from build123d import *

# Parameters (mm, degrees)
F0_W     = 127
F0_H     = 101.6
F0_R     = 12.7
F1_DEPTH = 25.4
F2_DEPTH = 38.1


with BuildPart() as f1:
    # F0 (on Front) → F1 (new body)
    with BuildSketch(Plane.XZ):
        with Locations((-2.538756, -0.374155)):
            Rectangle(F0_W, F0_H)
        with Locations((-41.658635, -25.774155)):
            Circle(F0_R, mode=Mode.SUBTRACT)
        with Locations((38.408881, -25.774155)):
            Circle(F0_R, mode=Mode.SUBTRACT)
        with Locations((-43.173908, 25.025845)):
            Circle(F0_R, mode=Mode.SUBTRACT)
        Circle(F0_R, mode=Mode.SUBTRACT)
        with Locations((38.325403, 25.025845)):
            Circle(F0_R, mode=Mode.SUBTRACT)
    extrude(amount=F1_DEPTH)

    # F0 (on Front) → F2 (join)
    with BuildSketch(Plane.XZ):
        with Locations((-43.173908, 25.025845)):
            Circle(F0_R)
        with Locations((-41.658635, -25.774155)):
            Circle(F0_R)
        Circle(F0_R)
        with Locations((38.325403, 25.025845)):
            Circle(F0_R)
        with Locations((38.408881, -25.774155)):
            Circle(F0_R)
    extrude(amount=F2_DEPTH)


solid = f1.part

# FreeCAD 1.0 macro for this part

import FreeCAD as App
import Part
import Sketcher
from FreeCAD import Vector
Q = App.Units.Quantity

doc = App.newDocument("Part")
body = doc.addObject("PartDesign::Body", "Body")

# Sketch on XZ plane
sketch1 = doc.addObject("Sketcher::SketchObject", "Sketch")
body.addObject(sketch1)
sketch1.AttachmentSupport = (doc.XZ_Plane, [""])
sketch1.MapMode = "FlatFace"
sketch1.addGeometry([
    Part.LineSegment(Vector(-66, 50, 0), Vector(-66, -51, 0)),  # 0
    Part.LineSegment(Vector(-66, -51, 0), Vector(61, -51, 0)),  # 1
    Part.LineSegment(Vector(61, -51, 0), Vector(61, 50, 0)),  # 2
    Part.LineSegment(Vector(61, 50, 0), Vector(-66, 50, 0)),  # 3
    Part.Circle(Vector(-42, -26, 0), Vector(0, 0, 1), 13),  # 4
    Part.Circle(Vector(38, -26, 0), Vector(0, 0, 1), 13),  # 5
    Part.Circle(Vector(-43, 25, 0), Vector(0, 0, 1), 13),  # 6
    Part.Circle(Vector(0, 0, 0), Vector(0, 0, 1), 13),  # 7
    Part.Circle(Vector(38, 25, 0), Vector(0, 0, 1), 13),  # 8
], False)
sketch1.addConstraint([
    Sketcher.Constraint("Coincident", 0, 2, 1, 1),
    Sketcher.Constraint("Coincident", 1, 2, 2, 1),
    Sketcher.Constraint("Coincident", 2, 2, 3, 1),
    Sketcher.Constraint("Coincident", 3, 2, 0, 1),
    Sketcher.Constraint("Vertical", 0),
    Sketcher.Constraint("Horizontal", 1),
    Sketcher.Constraint("Vertical", 2),
    Sketcher.Constraint("Horizontal", 3),
    Sketcher.Constraint("Coincident", 7, 3, -1, 1),
    Sketcher.Constraint("Equal", 4, 5),
    Sketcher.Constraint("Equal", 5, 6),
    Sketcher.Constraint("Equal", 6, 7),
    Sketcher.Constraint("Equal", 7, 8),
    Sketcher.Constraint("Horizontal", 4, 3, 5, 3),
    Sketcher.Constraint("Horizontal", 6, 3, 8, 3),
    Sketcher.Constraint("Diameter", 4, Q("1 in")),
    Sketcher.Constraint("DistanceX", 1, 1, 1, 2, Q("5 in")),
    Sketcher.Constraint("DistanceY", 0, 2, 0, 1, Q("4 in")),
    Sketcher.Constraint("DistanceY", 4, 3, 6, 3, Q("2 in")),
    Sketcher.Constraint("DistanceY", 0, 2, 4, 3, Q("1 in")),
    Sketcher.Constraint("DistanceX", -1, 1, 5, 3, 38.408881),
    Sketcher.Constraint("DistanceX", 6, 3, 5, 3, 81.582789),
    Sketcher.Constraint("DistanceX", 6, 3, 8, 3, 81.499311),
    Sketcher.Constraint("DistanceX", 4, 3, 8, 3, 79.984038),
    Sketcher.Constraint("DistanceX", 0, 2, 4, 3, 24.380121),
    Sketcher.Constraint("DistanceY", 4, 3, -1, 1, 25.774155),
])
pad1 = doc.addObject("PartDesign::Pad", "Pad")
body.addObject(pad1)
pad1.Profile = sketch1
pad1.Length = Q("1 in")

# Sketch on XZ plane
sketch2 = doc.addObject("Sketcher::SketchObject", "Sketch001")
body.addObject(sketch2)
sketch2.AttachmentSupport = (doc.XZ_Plane, [""])
sketch2.MapMode = "FlatFace"
sketch2.addGeometry([
    Part.Circle(Vector(-43, 25, 0), Vector(0, 0, 1), 13),  # 0
    Part.Circle(Vector(-42, -26, 0), Vector(0, 0, 1), 13),  # 1
    Part.Circle(Vector(0, 0, 0), Vector(0, 0, 1), 13),  # 2
    Part.Circle(Vector(38, 25, 0), Vector(0, 0, 1), 13),  # 3
    Part.Circle(Vector(38, -26, 0), Vector(0, 0, 1), 13),  # 4
], False)
sketch2.addConstraint([
    Sketcher.Constraint("Coincident", 2, 3, -1, 1),
    Sketcher.Constraint("Equal", 0, 1),
    Sketcher.Constraint("Equal", 1, 2),
    Sketcher.Constraint("Equal", 2, 3),
    Sketcher.Constraint("Equal", 3, 4),
    Sketcher.Constraint("Horizontal", 0, 3, 3, 3),
    Sketcher.Constraint("Horizontal", 1, 3, 4, 3),
    Sketcher.Constraint("Diameter", 0, Q("1 in")),
    Sketcher.Constraint("DistanceY", 1, 3, 0, 3, Q("2 in")),
    Sketcher.Constraint("DistanceX", -1, 1, 4, 3, 38.408881),
    Sketcher.Constraint("DistanceX", 0, 3, 3, 3, 81.499311),
    Sketcher.Constraint("DistanceX", 1, 3, 3, 3, 79.984038),
    Sketcher.Constraint("DistanceX", 0, 3, 4, 3, 81.582789),
    Sketcher.Constraint("DistanceY", -1, 1, 0, 3, 25.025845),
])
pad2 = doc.addObject("PartDesign::Pad", "Pad001")
body.addObject(pad2)
pad2.Profile = sketch2
pad2.Length = Q("1.5 in")

doc.recompute()
